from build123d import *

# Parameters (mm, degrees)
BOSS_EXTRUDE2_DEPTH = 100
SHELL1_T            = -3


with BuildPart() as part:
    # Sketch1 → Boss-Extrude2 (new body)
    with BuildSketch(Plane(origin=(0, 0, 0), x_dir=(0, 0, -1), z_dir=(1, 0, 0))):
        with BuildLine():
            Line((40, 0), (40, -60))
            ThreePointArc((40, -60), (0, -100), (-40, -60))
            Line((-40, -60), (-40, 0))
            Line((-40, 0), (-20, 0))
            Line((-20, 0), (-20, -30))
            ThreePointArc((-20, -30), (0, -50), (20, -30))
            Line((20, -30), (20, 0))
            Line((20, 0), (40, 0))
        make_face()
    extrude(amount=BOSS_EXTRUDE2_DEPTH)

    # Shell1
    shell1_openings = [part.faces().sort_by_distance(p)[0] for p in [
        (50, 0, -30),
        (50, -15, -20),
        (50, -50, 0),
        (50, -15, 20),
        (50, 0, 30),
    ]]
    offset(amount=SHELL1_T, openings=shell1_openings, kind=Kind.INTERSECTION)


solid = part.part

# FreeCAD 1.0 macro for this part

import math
import FreeCAD as App
import Part
import Sketcher


def faces_at(feature, points):
    """Names of the faces that lie closest to the given points."""
    faces = feature.Shape.Faces
    near = lambda p: min(range(len(faces)), key=lambda i: faces[i].distToShape(Part.Vertex(*p))[0])
    return sorted({f"Face{near(p) + 1}" for p in points})

doc = App.newDocument("Part")
body = doc.addObject("PartDesign::Body", "Body")

sketch1 = body.newObject("Sketcher::SketchObject", "Sketch")
sketch1.AttachmentSupport = (doc.getObject("YZ_Plane"), [""])
sketch1.MapMode = "FlatFace"
sketch1.addGeometry([
    Part.LineSegment(App.Vector(-60, -40, 0), App.Vector(0, -40, 0)),
    Part.LineSegment(App.Vector(0, -40, 0), App.Vector(0, -20, 0)),
    Part.LineSegment(App.Vector(0, -20, 0), App.Vector(-30, -20, 0)),
    Part.ArcOfCircle(Part.Circle(App.Vector(-30, 0, 0), App.Vector(0, 0, 1), 20), math.radians(90), math.radians(270)),
    Part.LineSegment(App.Vector(-30, 20, 0), App.Vector(0, 20, 0)),
    Part.LineSegment(App.Vector(0, 20, 0), App.Vector(0, 40, 0)),
    Part.LineSegment(App.Vector(0, 40, 0), App.Vector(-60, 40, 0)),
    Part.ArcOfCircle(Part.Circle(App.Vector(-60, 0, 0), App.Vector(0, 0, 1), 40), math.radians(90), math.radians(270)),
], False)
sketch1.addConstraint([
    Sketcher.Constraint("Coincident", 0, 2, 1, 1),
    Sketcher.Constraint("Coincident", 1, 2, 2, 1),
    Sketcher.Constraint("Tangent", 2, 2, 3, 2),
    Sketcher.Constraint("Tangent", 3, 1, 4, 1),
    Sketcher.Constraint("Coincident", 4, 2, 5, 1),
    Sketcher.Constraint("Coincident", 5, 2, 6, 1),
    Sketcher.Constraint("Tangent", 6, 2, 7, 1),
    Sketcher.Constraint("Tangent", 7, 2, 0, 1),
    Sketcher.Constraint("Horizontal", 0),
    Sketcher.Constraint("Vertical", 1),
    Sketcher.Constraint("Horizontal", 2),
    Sketcher.Constraint("Horizontal", 4),
    Sketcher.Constraint("Vertical", 5),
    Sketcher.Constraint("Horizontal", 6),
    Sketcher.Constraint("Symmetric", 1, 2, 4, 2, -1, 1),
    Sketcher.Constraint("Symmetric", 0, 2, 5, 2, -1),
    Sketcher.Constraint("Radius", 3, 20.0),
    Sketcher.Constraint("Radius", 7, 40.0),
    Sketcher.Constraint("DistanceX", 0, 1, 0, 2, 60.0),
    Sketcher.Constraint("DistanceX", 2, 2, 2, 1, 30.0),
])
pad1 = body.newObject("PartDesign::Pad", "Pad")
pad1.Profile = sketch1
pad1.Length = 100
doc.recompute()

thickness = body.newObject("PartDesign::Thickness", "Thickness")
thickness.Base = (pad1, faces_at(pad1, [
    (50, 0, -30),
    (50, -15, -20),
    (50, -50, 0),
    (50, -15, 20),
    (50, 0, 30),
]))
thickness.Value = 3
thickness.Reversed = True
thickness.Join = "Intersection"

doc.recompute()
